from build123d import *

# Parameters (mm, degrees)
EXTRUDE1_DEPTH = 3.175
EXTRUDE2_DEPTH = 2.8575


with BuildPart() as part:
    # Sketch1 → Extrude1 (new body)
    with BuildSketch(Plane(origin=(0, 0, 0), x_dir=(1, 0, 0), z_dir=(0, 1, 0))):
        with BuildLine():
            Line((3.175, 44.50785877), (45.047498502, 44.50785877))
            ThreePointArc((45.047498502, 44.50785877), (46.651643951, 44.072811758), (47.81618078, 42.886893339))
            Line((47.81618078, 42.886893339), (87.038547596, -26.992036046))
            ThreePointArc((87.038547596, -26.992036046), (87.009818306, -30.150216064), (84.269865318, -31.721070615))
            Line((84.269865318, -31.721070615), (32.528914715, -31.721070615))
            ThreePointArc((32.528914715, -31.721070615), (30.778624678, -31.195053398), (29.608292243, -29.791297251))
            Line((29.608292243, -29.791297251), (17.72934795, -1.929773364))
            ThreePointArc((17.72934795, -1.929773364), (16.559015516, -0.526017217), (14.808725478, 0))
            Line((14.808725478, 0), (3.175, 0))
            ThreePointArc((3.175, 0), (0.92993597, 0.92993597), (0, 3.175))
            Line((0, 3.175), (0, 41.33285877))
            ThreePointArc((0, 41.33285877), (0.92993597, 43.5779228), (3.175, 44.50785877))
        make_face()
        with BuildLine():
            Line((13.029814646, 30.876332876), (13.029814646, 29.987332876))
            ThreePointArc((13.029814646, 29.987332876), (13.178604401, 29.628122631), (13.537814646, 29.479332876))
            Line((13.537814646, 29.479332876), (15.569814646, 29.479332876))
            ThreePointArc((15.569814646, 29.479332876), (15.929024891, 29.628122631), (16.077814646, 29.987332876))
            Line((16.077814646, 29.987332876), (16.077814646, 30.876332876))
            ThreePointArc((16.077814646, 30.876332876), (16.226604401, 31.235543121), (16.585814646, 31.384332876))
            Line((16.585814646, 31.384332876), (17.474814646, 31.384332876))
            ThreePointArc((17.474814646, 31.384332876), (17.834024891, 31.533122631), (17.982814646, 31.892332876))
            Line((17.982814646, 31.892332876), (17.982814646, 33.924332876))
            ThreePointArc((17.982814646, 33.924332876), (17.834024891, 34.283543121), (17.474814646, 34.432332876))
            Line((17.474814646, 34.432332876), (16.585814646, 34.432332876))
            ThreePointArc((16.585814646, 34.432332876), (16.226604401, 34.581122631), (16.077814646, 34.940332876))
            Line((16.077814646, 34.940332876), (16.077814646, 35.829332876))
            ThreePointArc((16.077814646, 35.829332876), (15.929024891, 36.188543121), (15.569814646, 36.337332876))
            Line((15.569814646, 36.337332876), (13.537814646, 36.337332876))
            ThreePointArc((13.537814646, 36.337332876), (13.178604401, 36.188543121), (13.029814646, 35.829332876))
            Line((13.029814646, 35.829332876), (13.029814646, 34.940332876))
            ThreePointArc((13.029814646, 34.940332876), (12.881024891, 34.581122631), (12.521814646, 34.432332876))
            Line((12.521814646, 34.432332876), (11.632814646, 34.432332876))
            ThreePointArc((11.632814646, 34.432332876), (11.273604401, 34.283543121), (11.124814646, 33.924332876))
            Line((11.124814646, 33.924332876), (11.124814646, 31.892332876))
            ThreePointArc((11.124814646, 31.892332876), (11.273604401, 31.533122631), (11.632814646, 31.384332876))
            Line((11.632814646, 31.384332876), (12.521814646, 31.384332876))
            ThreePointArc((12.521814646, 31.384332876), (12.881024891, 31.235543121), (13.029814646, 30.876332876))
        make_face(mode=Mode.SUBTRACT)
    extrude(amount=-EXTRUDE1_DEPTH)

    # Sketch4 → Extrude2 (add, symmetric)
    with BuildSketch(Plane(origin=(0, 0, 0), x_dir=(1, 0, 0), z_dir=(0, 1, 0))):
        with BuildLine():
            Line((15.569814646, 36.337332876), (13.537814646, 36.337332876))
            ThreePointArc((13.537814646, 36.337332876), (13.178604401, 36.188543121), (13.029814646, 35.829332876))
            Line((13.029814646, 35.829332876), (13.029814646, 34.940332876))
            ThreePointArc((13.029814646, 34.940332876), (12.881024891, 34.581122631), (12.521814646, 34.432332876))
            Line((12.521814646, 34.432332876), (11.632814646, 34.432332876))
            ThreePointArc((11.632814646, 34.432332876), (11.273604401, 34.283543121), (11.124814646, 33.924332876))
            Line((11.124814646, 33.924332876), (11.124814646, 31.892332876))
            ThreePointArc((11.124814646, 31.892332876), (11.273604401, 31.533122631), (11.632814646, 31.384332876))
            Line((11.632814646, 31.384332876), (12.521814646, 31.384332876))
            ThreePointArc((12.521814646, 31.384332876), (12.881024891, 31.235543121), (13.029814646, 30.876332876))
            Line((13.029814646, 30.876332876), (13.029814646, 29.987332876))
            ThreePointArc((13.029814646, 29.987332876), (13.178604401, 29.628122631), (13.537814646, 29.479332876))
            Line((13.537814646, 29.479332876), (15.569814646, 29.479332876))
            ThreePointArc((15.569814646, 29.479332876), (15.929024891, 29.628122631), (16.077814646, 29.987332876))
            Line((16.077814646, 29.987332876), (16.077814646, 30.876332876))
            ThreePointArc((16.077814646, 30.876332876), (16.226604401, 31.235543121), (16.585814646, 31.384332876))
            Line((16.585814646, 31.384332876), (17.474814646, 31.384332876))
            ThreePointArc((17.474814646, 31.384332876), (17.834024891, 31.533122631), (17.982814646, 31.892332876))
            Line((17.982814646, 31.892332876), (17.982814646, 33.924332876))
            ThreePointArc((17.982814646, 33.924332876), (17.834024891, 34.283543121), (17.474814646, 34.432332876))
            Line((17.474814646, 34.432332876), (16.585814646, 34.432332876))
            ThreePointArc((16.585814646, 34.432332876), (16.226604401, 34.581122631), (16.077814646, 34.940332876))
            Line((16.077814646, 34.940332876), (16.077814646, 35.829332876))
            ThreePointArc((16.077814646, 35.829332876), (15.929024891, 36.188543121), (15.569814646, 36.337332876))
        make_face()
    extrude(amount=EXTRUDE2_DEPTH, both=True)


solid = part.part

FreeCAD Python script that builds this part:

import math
import FreeCAD as App
import Part
import Sketcher
from FreeCAD import Vector
Q = App.Units.Quantity

doc = App.newDocument("Part")
body = doc.addObject("PartDesign::Body", "Body")

# Sketch on XZ plane
sketch1 = body.newObject("Sketcher::SketchObject", "Sketch")
sketch1.AttachmentSupport = (doc.getObject("XZ_Plane"), [""])
sketch1.MapMode = "FlatFace"
sketch1.addGeometry([
    Part.LineSegment(Vector(45, -44.5, 0), Vector(3.2, -44.5, 0)),  # 0
    Part.ArcOfCircle(Part.Circle(Vector(3.2, -41.3, 0), Vector(0, 0, 1), 3.2), math.radians(-180), math.radians(-90)),  # 1
    Part.LineSegment(Vector(0, -41.3, 0), Vector(0, -3.2, 0)),  # 2
    Part.ArcOfCircle(Part.Circle(Vector(3.2, -3.2, 0), Vector(0, 0, 1), 3.2), math.radians(90), math.radians(180)),  # 3
    Part.LineSegment(Vector(3.2, 0, 0), Vector(14.8, 0, 0)),  # 4
    Part.ArcOfCircle(Part.Circle(Vector(14.8, 3.2, 0), Vector(0, 0, 1), 3.2), math.radians(-90), math.radians(-23)),  # 5
    Part.LineSegment(Vector(17.7, 1.9, 0), Vector(29.6, 29.8, 0)),  # 6
    Part.ArcOfCircle(Part.Circle(Vector(32.5, 28.5, 0), Vector(0, 0, 1), 3.2), math.radians(90), math.radians(157)),  # 7
    Part.LineSegment(Vector(32.5, 31.7, 0), Vector(84.3, 31.7, 0)),  # 8
    Part.ArcOfCircle(Part.Circle(Vector(84.3, 28.5, 0), Vector(0, 0, 1), 3.2), math.radians(-29), math.radians(90)),  # 9
    Part.LineSegment(Vector(87, 27, 0), Vector(47.8, -42.9, 0)),  # 10
    Part.ArcOfCircle(Part.Circle(Vector(45, -41.3, 0), Vector(0, 0, 1), 3.2), math.radians(-90), math.radians(-29)),  # 11
    Part.ArcOfCircle(Part.Circle(Vector(12.5, -30.9, 0), Vector(0, 0, 1), 0.5), math.radians(-90), math.radians(0)),  # 12
    Part.LineSegment(Vector(12.5, -31.4, 0), Vector(11.6, -31.4, 0)),  # 13
    Part.ArcOfCircle(Part.Circle(Vector(11.6, -31.9, 0), Vector(0, 0, 1), 0.5), math.radians(90), math.radians(180)),  # 14
    Part.LineSegment(Vector(11.1, -31.9, 0), Vector(11.1, -33.9, 0)),  # 15
    Part.ArcOfCircle(Part.Circle(Vector(11.6, -33.9, 0), Vector(0, 0, 1), 0.5), math.radians(180), math.radians(270)),  # 16
    Part.LineSegment(Vector(11.6, -34.4, 0), Vector(12.5, -34.4, 0)),  # 17
    Part.ArcOfCircle(Part.Circle(Vector(12.5, -34.9, 0), Vector(0, 0, 1), 0.5), math.radians(0), math.radians(90)),  # 18
    Part.LineSegment(Vector(13, -34.9, 0), Vector(13, -35.8, 0)),  # 19
    Part.ArcOfCircle(Part.Circle(Vector(13.5, -35.8, 0), Vector(0, 0, 1), 0.5), math.radians(180), math.radians(270)),  # 20
    Part.LineSegment(Vector(13.5, -36.3, 0), Vector(15.6, -36.3, 0)),  # 21
    Part.ArcOfCircle(Part.Circle(Vector(15.6, -35.8, 0), Vector(0, 0, 1), 0.5), math.radians(-90), math.radians(0)),  # 22
    Part.LineSegment(Vector(16.1, -35.8, 0), Vector(16.1, -34.9, 0)),  # 23
    Part.ArcOfCircle(Part.Circle(Vector(16.6, -34.9, 0), Vector(0, 0, 1), 0.5), math.radians(90), math.radians(180)),  # 24
    Part.LineSegment(Vector(16.6, -34.4, 0), Vector(17.5, -34.4, 0)),  # 25
    Part.ArcOfCircle(Part.Circle(Vector(17.5, -33.9, 0), Vector(0, 0, 1), 0.5), math.radians(-90), math.radians(0)),  # 26
    Part.LineSegment(Vector(18, -33.9, 0), Vector(18, -31.9, 0)),  # 27
    Part.ArcOfCircle(Part.Circle(Vector(17.5, -31.9, 0), Vector(0, 0, 1), 0.5), math.radians(0), math.radians(90)),  # 28
    Part.LineSegment(Vector(17.5, -31.4, 0), Vector(16.6, -31.4, 0)),  # 29
    Part.ArcOfCircle(Part.Circle(Vector(16.6, -30.9, 0), Vector(0, 0, 1), 0.5), math.radians(180), math.radians(270)),  # 30
    Part.LineSegment(Vector(16.1, -30.9, 0), Vector(16.1, -30, 0)),  # 31
    Part.ArcOfCircle(Part.Circle(Vector(15.6, -30, 0), Vector(0, 0, 1), 0.5), math.radians(0), math.radians(90)),  # 32
    Part.LineSegment(Vector(15.6, -29.5, 0), Vector(13.5, -29.5, 0)),  # 33
    Part.ArcOfCircle(Part.Circle(Vector(13.5, -30, 0), Vector(0, 0, 1), 0.5), math.radians(90), math.radians(180)),  # 34
    Part.LineSegment(Vector(13, -30, 0), Vector(13, -30.9, 0)),  # 35
], False)
sketch1.addConstraint([
    Sketcher.Constraint("Tangent", 0, 2, 1, 2),
    Sketcher.Constraint("Tangent", 1, 1, 2, 1),
    Sketcher.Constraint("Tangent", 2, 2, 3, 2),
    Sketcher.Constraint("Tangent", 3, 1, 4, 1),
    Sketcher.Constraint("Tangent", 4, 2, 5, 1),
    Sketcher.Constraint("Tangent", 5, 2, 6, 1),
    Sketcher.Constraint("Tangent", 6, 2, 7, 2),
    Sketcher.Constraint("Tangent", 7, 1, 8, 1),
    Sketcher.Constraint("Tangent", 8, 2, 9, 2),
    Sketcher.Constraint("Tangent", 9, 1, 10, 1),
    Sketcher.Constraint("Tangent", 10, 2, 11, 2),
    Sketcher.Constraint("Tangent", 11, 1, 0, 1),
    Sketcher.Constraint("Tangent", 12, 1, 13, 1),
    Sketcher.Constraint("Tangent", 13, 2, 14, 1),
    Sketcher.Constraint("Tangent", 14, 2, 15, 1),
    Sketcher.Constraint("Tangent", 15, 2, 16, 1),
    Sketcher.Constraint("Tangent", 16, 2, 17, 1),
    Sketcher.Constraint("Tangent", 17, 2, 18, 2),
    Sketcher.Constraint("Tangent", 18, 1, 19, 1),
    Sketcher.Constraint("Tangent", 19, 2, 20, 1),
    Sketcher.Constraint("Tangent", 20, 2, 21, 1),
    Sketcher.Constraint("Tangent", 21, 2, 22, 1),
    Sketcher.Constraint("Tangent", 22, 2, 23, 1),
    Sketcher.Constraint("Tangent", 23, 2, 24, 2),
    Sketcher.Constraint("Tangent", 24, 1, 25, 1),
    Sketcher.Constraint("Tangent", 25, 2, 26, 1),
    Sketcher.Constraint("Tangent", 26, 2, 27, 1),
    Sketcher.Constraint("Tangent", 27, 2, 28, 1),
    Sketcher.Constraint("Tangent", 28, 2, 29, 1),
    Sketcher.Constraint("Tangent", 29, 2, 30, 2),
    Sketcher.Constraint("Tangent", 30, 1, 31, 1),
    Sketcher.Constraint("Tangent", 31, 2, 32, 1),
    Sketcher.Constraint("Tangent", 32, 2, 33, 1),
    Sketcher.Constraint("Tangent", 33, 2, 34, 1),
    Sketcher.Constraint("Tangent", 34, 2, 35, 1),
    Sketcher.Constraint("Tangent", 35, 2, 12, 2),
    Sketcher.Constraint("Horizontal", 0),
    Sketcher.Constraint("Vertical", 2),
    Sketcher.Constraint("Horizontal", 4),
    Sketcher.Constraint("Horizontal", 8),
    Sketcher.Constraint("Horizontal", 13),
    Sketcher.Constraint("Vertical", 15),
    Sketcher.Constraint("Horizontal", 17),
    Sketcher.Constraint("Vertical", 19),
    Sketcher.Constraint("Horizontal", 21),
    Sketcher.Constraint("Vertical", 23),
    Sketcher.Constraint("Horizontal", 25),
    Sketcher.Constraint("Vertical", 27),
    Sketcher.Constraint("Horizontal", 29),
    Sketcher.Constraint("Vertical", 31),
    Sketcher.Constraint("Horizontal", 33),
    Sketcher.Constraint("Vertical", 35),
    Sketcher.Constraint("Equal", 1, 3),
    Sketcher.Constraint("Equal", 3, 5),
    Sketcher.Constraint("Equal", 5, 7),
    Sketcher.Constraint("Equal", 7, 9),
    Sketcher.Constraint("Equal", 9, 11),
    Sketcher.Constraint("Equal", 12, 14),
    Sketcher.Constraint("Equal", 14, 16),
    Sketcher.Constraint("Equal", 16, 18),
    Sketcher.Constraint("Equal", 18, 20),
    Sketcher.Constraint("Equal", 20, 22),
    Sketcher.Constraint("Equal", 22, 24),
    Sketcher.Constraint("Equal", 24, 26),
    Sketcher.Constraint("Equal", 26, 28),
    Sketcher.Constraint("Equal", 28, 30),
    Sketcher.Constraint("Equal", 30, 32),
    Sketcher.Constraint("Equal", 32, 34),
    Sketcher.Constraint("PointOnObject", 1, 1, -2),
    Sketcher.Constraint("PointOnObject", 3, 1, -1),
    Sketcher.Constraint("Horizontal", 18, 3, 24, 3),
    Sketcher.Constraint("Horizontal", 14, 3, 28, 3),
    Sketcher.Constraint("Vertical", 12, 3, 18, 3),
    Sketcher.Constraint("Vertical", 24, 3, 30, 3),
    Sketcher.Constraint("Equal", 17, 25),
    Sketcher.Constraint("Equal", 33, 15),
    Sketcher.Constraint("Equal", 29, 19),
    Sketcher.Constraint("Equal", 23, 31),
    Sketcher.Constraint("Radius", 12, Q("0.02 in")),
    Sketcher.Constraint("Radius", 1, Q("0.125 in")),
    Sketcher.Constraint("DistanceX", 21, 1, 21, 2, Q("0.08 in")),
    Sketcher.Constraint("DistanceX", 13, 2, 13, 1, Q("0.035 in")),
    Sketcher.Constraint("DistanceX", 0, 2, 0, 1, 41.872499),
    Sketcher.Constraint("DistanceX", 8, 1, 8, 2, 51.740951),
    Sketcher.Constraint("DistanceY", 2, 1, 2, 2, 38.157859),
    Sketcher.Constraint("DistanceX", 12, 3, 7, 3, 20.0071),
    Sketcher.Constraint("Distance", 6, 30.28818),
    Sketcher.Constraint("DistanceX", 4, 1, 4, 2, 11.633725),
    Sketcher.Constraint("DistanceY", -1, 1, 7, 3, 28.546071),
    Sketcher.Constraint("DistanceY", 10, 2, 26, 3, 8.96256),
])
pad1 = body.newObject("PartDesign::Pad", "Pad")
pad1.Profile = sketch1
pad1.Length = Q("0.125 in")

# Sketch on XZ plane
sketch2 = body.newObject("Sketcher::SketchObject", "Sketch001")
sketch2.AttachmentSupport = (doc.getObject("XZ_Plane"), [""])
sketch2.MapMode = "FlatFace"
sketch2.addGeometry([
    Part.LineSegment(Vector(15.6, -36.3, 0), Vector(13.5, -36.3, 0)),  # 0
    Part.ArcOfCircle(Part.Circle(Vector(13.5, -35.8, 0), Vector(0, 0, 1), 0.5), math.radians(180), math.radians(270)),  # 1
    Part.LineSegment(Vector(13, -35.8, 0), Vector(13, -34.9, 0)),  # 2
    Part.ArcOfCircle(Part.Circle(Vector(12.5, -34.9, 0), Vector(0, 0, 1), 0.5), math.radians(0), math.radians(90)),  # 3
    Part.LineSegment(Vector(12.5, -34.4, 0), Vector(11.6, -34.4, 0)),  # 4
    Part.ArcOfCircle(Part.Circle(Vector(11.6, -33.9, 0), Vector(0, 0, 1), 0.5), math.radians(180), math.radians(270)),  # 5
    Part.LineSegment(Vector(11.1, -33.9, 0), Vector(11.1, -31.9, 0)),  # 6
    Part.ArcOfCircle(Part.Circle(Vector(11.6, -31.9, 0), Vector(0, 0, 1), 0.5), math.radians(90), math.radians(180)),  # 7
    Part.LineSegment(Vector(11.6, -31.4, 0), Vector(12.5, -31.4, 0)),  # 8
    Part.ArcOfCircle(Part.Circle(Vector(12.5, -30.9, 0), Vector(0, 0, 1), 0.5), math.radians(-90), math.radians(0)),  # 9
    Part.LineSegment(Vector(13, -30.9, 0), Vector(13, -30, 0)),  # 10
    Part.ArcOfCircle(Part.Circle(Vector(13.5, -30, 0), Vector(0, 0, 1), 0.5), math.radians(90), math.radians(180)),  # 11
    Part.LineSegment(Vector(13.5, -29.5, 0), Vector(15.6, -29.5, 0)),  # 12
    Part.ArcOfCircle(Part.Circle(Vector(15.6, -30, 0), Vector(0, 0, 1), 0.5), math.radians(0), math.radians(90)),  # 13
    Part.LineSegment(Vector(16.1, -30, 0), Vector(16.1, -30.9, 0)),  # 14
    Part.ArcOfCircle(Part.Circle(Vector(16.6, -30.9, 0), Vector(0, 0, 1), 0.5), math.radians(180), math.radians(270)),  # 15
    Part.LineSegment(Vector(16.6, -31.4, 0), Vector(17.5, -31.4, 0)),  # 16
    Part.ArcOfCircle(Part.Circle(Vector(17.5, -31.9, 0), Vector(0, 0, 1), 0.5), math.radians(0), math.radians(90)),  # 17
    Part.LineSegment(Vector(18, -31.9, 0), Vector(18, -33.9, 0)),  # 18
    Part.ArcOfCircle(Part.Circle(Vector(17.5, -33.9, 0), Vector(0, 0, 1), 0.5), math.radians(-90), math.radians(0)),  # 19
    Part.LineSegment(Vector(17.5, -34.4, 0), Vector(16.6, -34.4, 0)),  # 20
    Part.ArcOfCircle(Part.Circle(Vector(16.6, -34.9, 0), Vector(0, 0, 1), 0.5), math.radians(90), math.radians(180)),  # 21
    Part.LineSegment(Vector(16.1, -34.9, 0), Vector(16.1, -35.8, 0)),  # 22
    Part.ArcOfCircle(Part.Circle(Vector(15.6, -35.8, 0), Vector(0, 0, 1), 0.5), math.radians(-90), math.radians(0)),  # 23
], False)
sketch2.addConstraint([
    Sketcher.Constraint("Tangent", 0, 2, 1, 2),
    Sketcher.Constraint("Tangent", 1, 1, 2, 1),
    Sketcher.Constraint("Tangent", 2, 2, 3, 1),
    Sketcher.Constraint("Tangent", 3, 2, 4, 1),
    Sketcher.Constraint("Tangent", 4, 2, 5, 2),
    Sketcher.Constraint("Tangent", 5, 1, 6, 1),
    Sketcher.Constraint("Tangent", 6, 2, 7, 2),
    Sketcher.Constraint("Tangent", 7, 1, 8, 1),
    Sketcher.Constraint("Tangent", 8, 2, 9, 1),
    Sketcher.Constraint("Tangent", 9, 2, 10, 1),
    Sketcher.Constraint("Tangent", 10, 2, 11, 2),
    Sketcher.Constraint("Tangent", 11, 1, 12, 1),
    Sketcher.Constraint("Tangent", 12, 2, 13, 2),
    Sketcher.Constraint("Tangent", 13, 1, 14, 1),
    Sketcher.Constraint("Tangent", 14, 2, 15, 1),
    Sketcher.Constraint("Tangent", 15, 2, 16, 1),
    Sketcher.Constraint("Tangent", 16, 2, 17, 2),
    Sketcher.Constraint("Tangent", 17, 1, 18, 1),
    Sketcher.Constraint("Tangent", 18, 2, 19, 2),
    Sketcher.Constraint("Tangent", 19, 1, 20, 1),
    Sketcher.Constraint("Tangent", 20, 2, 21, 1),
    Sketcher.Constraint("Tangent", 21, 2, 22, 1),
    Sketcher.Constraint("Tangent", 22, 2, 23, 2),
    Sketcher.Constraint("Tangent", 23, 1, 0, 1),
    Sketcher.Constraint("Horizontal", 0),
    Sketcher.Constraint("Vertical", 2),
    Sketcher.Constraint("Horizontal", 4),
    Sketcher.Constraint("Vertical", 6),
    Sketcher.Constraint("Horizontal", 8),
    Sketcher.Constraint("Vertical", 10),
    Sketcher.Constraint("Horizontal", 12),
    Sketcher.Constraint("Vertical", 14),
    Sketcher.Constraint("Horizontal", 16),
    Sketcher.Constraint("Vertical", 18),
    Sketcher.Constraint("Horizontal", 20),
    Sketcher.Constraint("Vertical", 22),
    Sketcher.Constraint("Equal", 1, 3),
    Sketcher.Constraint("Equal", 3, 5),
    Sketcher.Constraint("Equal", 5, 7),
    Sketcher.Constraint("Equal", 7, 9),
    Sketcher.Constraint("Equal", 9, 11),
    Sketcher.Constraint("Equal", 11, 13),
    Sketcher.Constraint("Equal", 13, 15),
    Sketcher.Constraint("Equal", 15, 17),
    Sketcher.Constraint("Equal", 17, 19),
    Sketcher.Constraint("Equal", 19, 21),
    Sketcher.Constraint("Equal", 21, 23),
    Sketcher.Constraint("Horizontal", 9, 3, 15, 3),
    Sketcher.Constraint("Horizontal", 5, 3, 19, 3),
    Sketcher.Constraint("Vertical", 3, 3, 9, 3),
    Sketcher.Constraint("Vertical", 15, 3, 21, 3),
    Sketcher.Constraint("Equal", 8, 16),
    Sketcher.Constraint("Equal", 20, 2),
    Sketcher.Constraint("Equal", 12, 6),
    Sketcher.Constraint("Equal", 2, 10),
    Sketcher.Constraint("Radius", 1, Q("0.02 in")),
    Sketcher.Constraint("DistanceX", 0, 2, 0, 1, Q("0.08 in")),
    Sketcher.Constraint("DistanceX", 4, 2, 4, 1, Q("0.035 in")),
    Sketcher.Constraint("DistanceX", -1, 1, 1, 3, 13.537815),
    Sketcher.Constraint("DistanceY", 1, 3, -1, 1, 35.829333),
])
pad2 = body.newObject("PartDesign::Pad", "Pad001")
pad2.Profile = sketch2
pad2.Length = Q("0.225 in")
pad2.Midplane = True

doc.recompute()
